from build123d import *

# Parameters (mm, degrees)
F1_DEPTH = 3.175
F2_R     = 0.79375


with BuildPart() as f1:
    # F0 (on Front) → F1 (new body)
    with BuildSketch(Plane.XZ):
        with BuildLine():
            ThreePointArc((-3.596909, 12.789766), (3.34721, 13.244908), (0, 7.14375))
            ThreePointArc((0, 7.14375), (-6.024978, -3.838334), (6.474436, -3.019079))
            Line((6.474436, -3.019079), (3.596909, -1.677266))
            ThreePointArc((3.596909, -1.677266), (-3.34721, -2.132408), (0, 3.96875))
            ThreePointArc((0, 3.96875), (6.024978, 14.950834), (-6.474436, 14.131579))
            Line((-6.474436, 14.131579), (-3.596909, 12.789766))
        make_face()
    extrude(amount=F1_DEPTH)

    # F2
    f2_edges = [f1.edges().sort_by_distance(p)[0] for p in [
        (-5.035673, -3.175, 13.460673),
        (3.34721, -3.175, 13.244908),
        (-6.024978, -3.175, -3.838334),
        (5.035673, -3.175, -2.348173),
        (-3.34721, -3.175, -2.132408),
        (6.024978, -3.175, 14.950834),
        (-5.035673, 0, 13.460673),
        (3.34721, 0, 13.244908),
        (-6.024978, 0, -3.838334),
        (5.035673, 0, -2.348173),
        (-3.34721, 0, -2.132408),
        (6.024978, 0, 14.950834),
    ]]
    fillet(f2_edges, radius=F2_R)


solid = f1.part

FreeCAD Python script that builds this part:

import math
import FreeCAD as App
import Part
import Sketcher

V = App.Vector
Q = App.Units.Quantity


def edges_at(feature, points):
    """Names of the edges that pass closest to the given points."""
    edges = feature.Shape.Edges
    near = lambda p: min(range(len(edges)), key=lambda i: edges[i].distToShape(Part.Vertex(*p))[0])
    return sorted({f"Edge{near(p) + 1}" for p in points})

doc = App.newDocument("Part")
params = doc.addObject("Spreadsheet::Sheet", "Params")
for row, (alias, value) in enumerate([
    ("sketch1_radius", "0.15625 in"),
    ("sketch1_radius2", "0.28125 in"),
    ("pad1_length", "0.125 in"),
    ("fillet_radius", "0.03125 in"),
], start=1):
    params.set(f"A{row}", alias)
    params.set(f"B{row}", "=" + value)
    params.setAlias(f"B{row}", alias)

body = doc.addObject("PartDesign::Body", "Body")

# Sketch on XZ plane
sketch1 = body.newObject("Sketcher::SketchObject", "Sketch")
sketch1.AttachmentSupport = (doc.getObject("XZ_Plane"), [""])
sketch1.MapMode = "FlatFace"
sketch1.addGeometry([
    Part.ArcOfCircle(Part.Circle(V(0, 11.1, 0), V(0, 0, 1), 4), math.radians(-90), math.radians(155)),  # 0
    Part.ArcOfCircle(Part.Circle(V(0, 0, 0), V(0, 0, 1), 7.1), math.radians(90), math.radians(335)),  # 1
    Part.LineSegment(V(6.5, -3, 0), V(3.6, -1.7, 0)),  # 2
    Part.ArcOfCircle(Part.Circle(V(0, 0, 0), V(0, 0, 1), 4), math.radians(90), math.radians(335)),  # 3
    Part.ArcOfCircle(Part.Circle(V(0, 11.1, 0), V(0, 0, 1), 7.1), math.radians(-90), math.radians(155)),  # 4
    Part.LineSegment(V(-6.5, 14.1, 0), V(-3.6, 12.8, 0)),  # 5
], False)
sketch1.addConstraint([
    Sketcher.Constraint("Tangent", 0, 1, 1, 1),
    Sketcher.Constraint("Coincident", 1, 2, 2, 1),
    Sketcher.Constraint("Coincident", 2, 2, 3, 2),
    Sketcher.Constraint("Tangent", 3, 1, 4, 1),
    Sketcher.Constraint("Coincident", 4, 2, 5, 1),
    Sketcher.Constraint("Coincident", 5, 2, 0, 2),
    Sketcher.Constraint("Coincident", 1, 3, -1, 1),
    Sketcher.Constraint("Coincident", 3, 3, -1, 1),
    Sketcher.Constraint("Coincident", 4, 3, 0, 3),
    Sketcher.Constraint("Equal", 0, 3),
    Sketcher.Constraint("PointOnObject", 0, 3, -2),
    Sketcher.Constraint("Parallel", 2, 5),
    Sketcher.Constraint("Angle", 2, Q("154.999998 deg")),
    Sketcher.Constraint("Radius", 0, Q("0.15625 in")),
    Sketcher.Constraint("Radius", 1, Q("0.28125 in")),
    Sketcher.Constraint("DistanceY", 1, 2, -1, 1, 3.019079),
    Sketcher.Constraint("DistanceY", -1, 1, 4, 2, 14.131579),
])
sketch1.setExpression("Constraints[13]", "Params.sketch1_radius")
sketch1.setExpression("Constraints[14]", "Params.sketch1_radius2")
pad1 = body.newObject("PartDesign::Pad", "Pad")
pad1.Profile = sketch1
pad1.setExpression("Length", "Params.pad1_length")
doc.recompute()

fillet = body.newObject("PartDesign::Fillet", "Fillet")
fillet.Base = (pad1, edges_at(pad1, [
    (-5.036, -3.175, 13.461),
    (3.347, -3.175, 13.245),
    (-6.025, -3.175, -3.838),
    (5.036, -3.175, -2.348),
    (-3.347, -3.175, -2.132),
    (6.025, -3.175, 14.951),
    (-5.036, 0, 13.461),
    (3.347, 0, 13.245),
    (-6.025, 0, -3.838),
    (5.036, 0, -2.348),
    (-3.347, 0, -2.132),
    (6.025, 0, 14.951),
]))
fillet.setExpression("Radius", "Params.fillet_radius")

doc.recompute()
